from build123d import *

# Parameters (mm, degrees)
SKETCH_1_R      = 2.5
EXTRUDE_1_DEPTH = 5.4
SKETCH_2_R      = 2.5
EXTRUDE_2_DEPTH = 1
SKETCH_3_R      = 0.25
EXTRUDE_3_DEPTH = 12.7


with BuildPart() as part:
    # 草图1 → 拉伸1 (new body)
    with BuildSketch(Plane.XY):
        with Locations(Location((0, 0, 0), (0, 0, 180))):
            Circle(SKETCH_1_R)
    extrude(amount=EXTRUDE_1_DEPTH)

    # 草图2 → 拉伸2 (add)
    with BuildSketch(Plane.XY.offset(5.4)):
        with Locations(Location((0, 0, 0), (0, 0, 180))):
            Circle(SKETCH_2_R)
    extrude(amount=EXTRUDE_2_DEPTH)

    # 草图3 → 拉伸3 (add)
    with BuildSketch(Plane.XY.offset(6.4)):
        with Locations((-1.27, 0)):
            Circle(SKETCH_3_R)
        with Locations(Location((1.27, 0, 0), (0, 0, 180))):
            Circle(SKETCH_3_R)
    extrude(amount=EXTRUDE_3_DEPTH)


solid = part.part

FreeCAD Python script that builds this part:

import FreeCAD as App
import Part
import Sketcher
Q = App.Units.Quantity

doc = App.newDocument("Part")
body = doc.addObject("PartDesign::Body", "Body")

sketch1 = body.newObject("Sketcher::SketchObject", "Sketch")
sketch1.AttachmentSupport = (doc.getObject("XY_Plane"), [""])
sketch1.MapMode = "FlatFace"
sketch1.addGeometry(Part.Circle(App.Vector(0, 0, 0), App.Vector(0, 0, 1), 2.5), False)
sketch1.addConstraint([
    Sketcher.Constraint("Coincident", 0, 3, -1, 1),
    Sketcher.Constraint("Diameter", 0, Q("5 mm")),
])
pad1 = body.newObject("PartDesign::Pad", "Pad")
pad1.Profile = sketch1
pad1.Length = 5.4

sketch2 = body.newObject("Sketcher::SketchObject", "Sketch001")
sketch2.AttachmentSupport = (doc.getObject("XY_Plane"), [""])
sketch2.MapMode = "FlatFace"
sketch2.AttachmentOffset = App.Placement(App.Vector(0, 0, 5.4), App.Rotation())
sketch2.addGeometry(Part.Circle(App.Vector(0, 0, 0), App.Vector(0, 0, 1), 2.5), False)
sketch2.addConstraint([
    Sketcher.Constraint("Coincident", 0, 3, -1, 1),
    Sketcher.Constraint("Diameter", 0, Q("5 mm")),
])
pad2 = body.newObject("PartDesign::Pad", "Pad001")
pad2.Profile = sketch2
pad2.Length = 1

sketch3 = body.newObject("Sketcher::SketchObject", "Sketch002")
sketch3.AttachmentSupport = (doc.getObject("XY_Plane"), [""])
sketch3.MapMode = "FlatFace"
sketch3.AttachmentOffset = App.Placement(App.Vector(0, 0, 6.4), App.Rotation())
sketch3.addGeometry([
    Part.Circle(App.Vector(-1.27, 0, 0), App.Vector(0, 0, 1), 0.25),
    Part.Circle(App.Vector(1.27, 0, 0), App.Vector(0, 0, 1), 0.25),
], False)
sketch3.addConstraint([
    Sketcher.Constraint("Equal", 0, 1),
    Sketcher.Constraint("Symmetric", 0, 3, 1, 3, -1, 1),
    Sketcher.Constraint("PointOnObject", 0, 3, -1),
    Sketcher.Constraint("Diameter", 0, Q("0.5 mm")),
    Sketcher.Constraint("DistanceX", 0, 3, -1, 1, Q("1.27 mm")),
])
pad3 = body.newObject("PartDesign::Pad", "Pad002")
pad3.Profile = sketch3
pad3.Length = 12.7

doc.recompute()
